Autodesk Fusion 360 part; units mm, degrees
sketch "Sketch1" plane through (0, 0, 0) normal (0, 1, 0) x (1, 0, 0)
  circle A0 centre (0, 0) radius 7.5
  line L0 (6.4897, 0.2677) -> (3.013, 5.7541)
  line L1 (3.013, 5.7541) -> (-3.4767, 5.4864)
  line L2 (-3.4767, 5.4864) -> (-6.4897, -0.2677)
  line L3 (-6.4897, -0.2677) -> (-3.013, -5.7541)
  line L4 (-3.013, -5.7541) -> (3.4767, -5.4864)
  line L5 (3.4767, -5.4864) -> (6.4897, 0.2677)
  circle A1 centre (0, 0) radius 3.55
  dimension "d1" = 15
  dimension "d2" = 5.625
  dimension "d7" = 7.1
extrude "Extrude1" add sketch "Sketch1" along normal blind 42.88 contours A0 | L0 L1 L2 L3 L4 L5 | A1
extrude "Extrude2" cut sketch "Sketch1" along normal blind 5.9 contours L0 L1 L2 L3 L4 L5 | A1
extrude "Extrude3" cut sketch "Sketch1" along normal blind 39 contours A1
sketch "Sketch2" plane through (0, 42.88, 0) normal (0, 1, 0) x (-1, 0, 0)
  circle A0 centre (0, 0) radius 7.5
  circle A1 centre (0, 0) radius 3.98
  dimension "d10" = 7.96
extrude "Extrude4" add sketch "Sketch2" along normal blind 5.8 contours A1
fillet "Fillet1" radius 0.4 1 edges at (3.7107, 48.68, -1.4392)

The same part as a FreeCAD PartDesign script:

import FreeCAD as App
import Part
import Sketcher


def edges_at(feature, points):
    """Names of the edges that pass closest to the given points."""
    edges = feature.Shape.Edges
    near = lambda p: min(range(len(edges)), key=lambda i: edges[i].distToShape(Part.Vertex(*p))[0])
    return sorted({f"Edge{near(p) + 1}" for p in points})

doc = App.newDocument("Part")
body = doc.addObject("PartDesign::Body", "Body")

# Sketch on XZ plane
sketch1 = body.newObject("Sketcher::SketchObject", "Sketch")
sketch1.AttachmentSupport = (doc.getObject("XZ_Plane"), [""])
sketch1.MapMode = "FlatFace"
sketch1.addGeometry(Part.Circle(App.Vector(0, 0, 0), App.Vector(0, 0, 1), 8), False)
sketch1.addConstraint([
    Sketcher.Constraint("Coincident", 0, 3, -1, 1),
    Sketcher.Constraint("Diameter", 0, 15.0),
])
pad1 = body.newObject("PartDesign::Pad", "Pad")
pad1.Profile = sketch1
pad1.Length = 42.88
pad1.Reversed = True

# Sketch on XZ plane
sketch2 = body.newObject("Sketcher::SketchObject", "Sketch001")
sketch2.AttachmentSupport = (doc.getObject("XZ_Plane"), [""])
sketch2.MapMode = "FlatFace"
sketch2.addGeometry([
    Part.LineSegment(App.Vector(3, 5, 0), App.Vector(6, 0, 0)),  # 0
    Part.LineSegment(App.Vector(6, 0, 0), App.Vector(3, -6, 0)),  # 1
    Part.LineSegment(App.Vector(3, -6, 0), App.Vector(-3, -5, 0)),  # 2
    Part.LineSegment(App.Vector(-3, -5, 0), App.Vector(-6, 0, 0)),  # 3
    Part.LineSegment(App.Vector(-6, 0, 0), App.Vector(-3, 6, 0)),  # 4
    Part.LineSegment(App.Vector(-3, 6, 0), App.Vector(3, 5, 0)),  # 5
], False)
sketch2.addConstraint([
    Sketcher.Constraint("Coincident", 0, 2, 1, 1),
    Sketcher.Constraint("Coincident", 1, 2, 2, 1),
    Sketcher.Constraint("Coincident", 2, 2, 3, 1),
    Sketcher.Constraint("Coincident", 3, 2, 4, 1),
    Sketcher.Constraint("Coincident", 4, 2, 5, 1),
    Sketcher.Constraint("Coincident", 5, 2, 0, 1),
    Sketcher.Constraint("Symmetric", 0, 2, 3, 2, -1, 1),
    Sketcher.Constraint("Symmetric", 1, 2, 4, 2, -1, 1),
    Sketcher.Constraint("Symmetric", 2, 2, 5, 2, -1, 1),
    Sketcher.Constraint("Equal", 0, 1),
    Sketcher.Constraint("Equal", 1, 2),
    Sketcher.Constraint("DistanceX", -1, 1, 1, 2, 3.013),
    Sketcher.Constraint("DistanceY", 1, 2, -1, 1, 5.754),
    Sketcher.Constraint("DistanceX", 3, 2, 2, 2, 3.013),
    Sketcher.Constraint("DistanceY", 2, 2, 3, 2, 5.754),
])
pocket1 = body.newObject("PartDesign::Pocket", "Pocket")
pocket1.Profile = sketch2
pocket1.Length = 5.9

# Sketch on XZ plane
sketch3 = body.newObject("Sketcher::SketchObject", "Sketch002")
sketch3.AttachmentSupport = (doc.getObject("XZ_Plane"), [""])
sketch3.MapMode = "FlatFace"
sketch3.addGeometry(Part.Circle(App.Vector(0, 0, 0), App.Vector(0, 0, 1), 3.5), False)
sketch3.addConstraint([
    Sketcher.Constraint("Coincident", 0, 3, -1, 1),
    Sketcher.Constraint("Diameter", 0, 7.1),
])
pocket2 = body.newObject("PartDesign::Pocket", "Pocket001")
pocket2.Profile = sketch3
pocket2.Length = 39

# Sketch on XZ plane
sketch4 = body.newObject("Sketcher::SketchObject", "Sketch003")
sketch4.AttachmentSupport = (doc.getObject("XZ_Plane"), [""])
sketch4.MapMode = "FlatFace"
sketch4.AttachmentOffset = App.Placement(App.Vector(0, 0, -42.88), App.Rotation())
sketch4.addGeometry(Part.Circle(App.Vector(0, 0, 0), App.Vector(0, 0, 1), 4), False)
sketch4.addConstraint([
    Sketcher.Constraint("Coincident", 0, 3, -1, 1),
    Sketcher.Constraint("Diameter", 0, 7.96),
])
pad2 = body.newObject("PartDesign::Pad", "Pad001")
pad2.Profile = sketch4
pad2.Length = 5.8
pad2.Reversed = True
doc.recompute()

fillet = body.newObject("PartDesign::Fillet", "Fillet")
fillet.Base = (pad2, edges_at(pad2, [(3.711, 48.68, -1.439)]))
fillet.Radius = 0.4

doc.recompute()
